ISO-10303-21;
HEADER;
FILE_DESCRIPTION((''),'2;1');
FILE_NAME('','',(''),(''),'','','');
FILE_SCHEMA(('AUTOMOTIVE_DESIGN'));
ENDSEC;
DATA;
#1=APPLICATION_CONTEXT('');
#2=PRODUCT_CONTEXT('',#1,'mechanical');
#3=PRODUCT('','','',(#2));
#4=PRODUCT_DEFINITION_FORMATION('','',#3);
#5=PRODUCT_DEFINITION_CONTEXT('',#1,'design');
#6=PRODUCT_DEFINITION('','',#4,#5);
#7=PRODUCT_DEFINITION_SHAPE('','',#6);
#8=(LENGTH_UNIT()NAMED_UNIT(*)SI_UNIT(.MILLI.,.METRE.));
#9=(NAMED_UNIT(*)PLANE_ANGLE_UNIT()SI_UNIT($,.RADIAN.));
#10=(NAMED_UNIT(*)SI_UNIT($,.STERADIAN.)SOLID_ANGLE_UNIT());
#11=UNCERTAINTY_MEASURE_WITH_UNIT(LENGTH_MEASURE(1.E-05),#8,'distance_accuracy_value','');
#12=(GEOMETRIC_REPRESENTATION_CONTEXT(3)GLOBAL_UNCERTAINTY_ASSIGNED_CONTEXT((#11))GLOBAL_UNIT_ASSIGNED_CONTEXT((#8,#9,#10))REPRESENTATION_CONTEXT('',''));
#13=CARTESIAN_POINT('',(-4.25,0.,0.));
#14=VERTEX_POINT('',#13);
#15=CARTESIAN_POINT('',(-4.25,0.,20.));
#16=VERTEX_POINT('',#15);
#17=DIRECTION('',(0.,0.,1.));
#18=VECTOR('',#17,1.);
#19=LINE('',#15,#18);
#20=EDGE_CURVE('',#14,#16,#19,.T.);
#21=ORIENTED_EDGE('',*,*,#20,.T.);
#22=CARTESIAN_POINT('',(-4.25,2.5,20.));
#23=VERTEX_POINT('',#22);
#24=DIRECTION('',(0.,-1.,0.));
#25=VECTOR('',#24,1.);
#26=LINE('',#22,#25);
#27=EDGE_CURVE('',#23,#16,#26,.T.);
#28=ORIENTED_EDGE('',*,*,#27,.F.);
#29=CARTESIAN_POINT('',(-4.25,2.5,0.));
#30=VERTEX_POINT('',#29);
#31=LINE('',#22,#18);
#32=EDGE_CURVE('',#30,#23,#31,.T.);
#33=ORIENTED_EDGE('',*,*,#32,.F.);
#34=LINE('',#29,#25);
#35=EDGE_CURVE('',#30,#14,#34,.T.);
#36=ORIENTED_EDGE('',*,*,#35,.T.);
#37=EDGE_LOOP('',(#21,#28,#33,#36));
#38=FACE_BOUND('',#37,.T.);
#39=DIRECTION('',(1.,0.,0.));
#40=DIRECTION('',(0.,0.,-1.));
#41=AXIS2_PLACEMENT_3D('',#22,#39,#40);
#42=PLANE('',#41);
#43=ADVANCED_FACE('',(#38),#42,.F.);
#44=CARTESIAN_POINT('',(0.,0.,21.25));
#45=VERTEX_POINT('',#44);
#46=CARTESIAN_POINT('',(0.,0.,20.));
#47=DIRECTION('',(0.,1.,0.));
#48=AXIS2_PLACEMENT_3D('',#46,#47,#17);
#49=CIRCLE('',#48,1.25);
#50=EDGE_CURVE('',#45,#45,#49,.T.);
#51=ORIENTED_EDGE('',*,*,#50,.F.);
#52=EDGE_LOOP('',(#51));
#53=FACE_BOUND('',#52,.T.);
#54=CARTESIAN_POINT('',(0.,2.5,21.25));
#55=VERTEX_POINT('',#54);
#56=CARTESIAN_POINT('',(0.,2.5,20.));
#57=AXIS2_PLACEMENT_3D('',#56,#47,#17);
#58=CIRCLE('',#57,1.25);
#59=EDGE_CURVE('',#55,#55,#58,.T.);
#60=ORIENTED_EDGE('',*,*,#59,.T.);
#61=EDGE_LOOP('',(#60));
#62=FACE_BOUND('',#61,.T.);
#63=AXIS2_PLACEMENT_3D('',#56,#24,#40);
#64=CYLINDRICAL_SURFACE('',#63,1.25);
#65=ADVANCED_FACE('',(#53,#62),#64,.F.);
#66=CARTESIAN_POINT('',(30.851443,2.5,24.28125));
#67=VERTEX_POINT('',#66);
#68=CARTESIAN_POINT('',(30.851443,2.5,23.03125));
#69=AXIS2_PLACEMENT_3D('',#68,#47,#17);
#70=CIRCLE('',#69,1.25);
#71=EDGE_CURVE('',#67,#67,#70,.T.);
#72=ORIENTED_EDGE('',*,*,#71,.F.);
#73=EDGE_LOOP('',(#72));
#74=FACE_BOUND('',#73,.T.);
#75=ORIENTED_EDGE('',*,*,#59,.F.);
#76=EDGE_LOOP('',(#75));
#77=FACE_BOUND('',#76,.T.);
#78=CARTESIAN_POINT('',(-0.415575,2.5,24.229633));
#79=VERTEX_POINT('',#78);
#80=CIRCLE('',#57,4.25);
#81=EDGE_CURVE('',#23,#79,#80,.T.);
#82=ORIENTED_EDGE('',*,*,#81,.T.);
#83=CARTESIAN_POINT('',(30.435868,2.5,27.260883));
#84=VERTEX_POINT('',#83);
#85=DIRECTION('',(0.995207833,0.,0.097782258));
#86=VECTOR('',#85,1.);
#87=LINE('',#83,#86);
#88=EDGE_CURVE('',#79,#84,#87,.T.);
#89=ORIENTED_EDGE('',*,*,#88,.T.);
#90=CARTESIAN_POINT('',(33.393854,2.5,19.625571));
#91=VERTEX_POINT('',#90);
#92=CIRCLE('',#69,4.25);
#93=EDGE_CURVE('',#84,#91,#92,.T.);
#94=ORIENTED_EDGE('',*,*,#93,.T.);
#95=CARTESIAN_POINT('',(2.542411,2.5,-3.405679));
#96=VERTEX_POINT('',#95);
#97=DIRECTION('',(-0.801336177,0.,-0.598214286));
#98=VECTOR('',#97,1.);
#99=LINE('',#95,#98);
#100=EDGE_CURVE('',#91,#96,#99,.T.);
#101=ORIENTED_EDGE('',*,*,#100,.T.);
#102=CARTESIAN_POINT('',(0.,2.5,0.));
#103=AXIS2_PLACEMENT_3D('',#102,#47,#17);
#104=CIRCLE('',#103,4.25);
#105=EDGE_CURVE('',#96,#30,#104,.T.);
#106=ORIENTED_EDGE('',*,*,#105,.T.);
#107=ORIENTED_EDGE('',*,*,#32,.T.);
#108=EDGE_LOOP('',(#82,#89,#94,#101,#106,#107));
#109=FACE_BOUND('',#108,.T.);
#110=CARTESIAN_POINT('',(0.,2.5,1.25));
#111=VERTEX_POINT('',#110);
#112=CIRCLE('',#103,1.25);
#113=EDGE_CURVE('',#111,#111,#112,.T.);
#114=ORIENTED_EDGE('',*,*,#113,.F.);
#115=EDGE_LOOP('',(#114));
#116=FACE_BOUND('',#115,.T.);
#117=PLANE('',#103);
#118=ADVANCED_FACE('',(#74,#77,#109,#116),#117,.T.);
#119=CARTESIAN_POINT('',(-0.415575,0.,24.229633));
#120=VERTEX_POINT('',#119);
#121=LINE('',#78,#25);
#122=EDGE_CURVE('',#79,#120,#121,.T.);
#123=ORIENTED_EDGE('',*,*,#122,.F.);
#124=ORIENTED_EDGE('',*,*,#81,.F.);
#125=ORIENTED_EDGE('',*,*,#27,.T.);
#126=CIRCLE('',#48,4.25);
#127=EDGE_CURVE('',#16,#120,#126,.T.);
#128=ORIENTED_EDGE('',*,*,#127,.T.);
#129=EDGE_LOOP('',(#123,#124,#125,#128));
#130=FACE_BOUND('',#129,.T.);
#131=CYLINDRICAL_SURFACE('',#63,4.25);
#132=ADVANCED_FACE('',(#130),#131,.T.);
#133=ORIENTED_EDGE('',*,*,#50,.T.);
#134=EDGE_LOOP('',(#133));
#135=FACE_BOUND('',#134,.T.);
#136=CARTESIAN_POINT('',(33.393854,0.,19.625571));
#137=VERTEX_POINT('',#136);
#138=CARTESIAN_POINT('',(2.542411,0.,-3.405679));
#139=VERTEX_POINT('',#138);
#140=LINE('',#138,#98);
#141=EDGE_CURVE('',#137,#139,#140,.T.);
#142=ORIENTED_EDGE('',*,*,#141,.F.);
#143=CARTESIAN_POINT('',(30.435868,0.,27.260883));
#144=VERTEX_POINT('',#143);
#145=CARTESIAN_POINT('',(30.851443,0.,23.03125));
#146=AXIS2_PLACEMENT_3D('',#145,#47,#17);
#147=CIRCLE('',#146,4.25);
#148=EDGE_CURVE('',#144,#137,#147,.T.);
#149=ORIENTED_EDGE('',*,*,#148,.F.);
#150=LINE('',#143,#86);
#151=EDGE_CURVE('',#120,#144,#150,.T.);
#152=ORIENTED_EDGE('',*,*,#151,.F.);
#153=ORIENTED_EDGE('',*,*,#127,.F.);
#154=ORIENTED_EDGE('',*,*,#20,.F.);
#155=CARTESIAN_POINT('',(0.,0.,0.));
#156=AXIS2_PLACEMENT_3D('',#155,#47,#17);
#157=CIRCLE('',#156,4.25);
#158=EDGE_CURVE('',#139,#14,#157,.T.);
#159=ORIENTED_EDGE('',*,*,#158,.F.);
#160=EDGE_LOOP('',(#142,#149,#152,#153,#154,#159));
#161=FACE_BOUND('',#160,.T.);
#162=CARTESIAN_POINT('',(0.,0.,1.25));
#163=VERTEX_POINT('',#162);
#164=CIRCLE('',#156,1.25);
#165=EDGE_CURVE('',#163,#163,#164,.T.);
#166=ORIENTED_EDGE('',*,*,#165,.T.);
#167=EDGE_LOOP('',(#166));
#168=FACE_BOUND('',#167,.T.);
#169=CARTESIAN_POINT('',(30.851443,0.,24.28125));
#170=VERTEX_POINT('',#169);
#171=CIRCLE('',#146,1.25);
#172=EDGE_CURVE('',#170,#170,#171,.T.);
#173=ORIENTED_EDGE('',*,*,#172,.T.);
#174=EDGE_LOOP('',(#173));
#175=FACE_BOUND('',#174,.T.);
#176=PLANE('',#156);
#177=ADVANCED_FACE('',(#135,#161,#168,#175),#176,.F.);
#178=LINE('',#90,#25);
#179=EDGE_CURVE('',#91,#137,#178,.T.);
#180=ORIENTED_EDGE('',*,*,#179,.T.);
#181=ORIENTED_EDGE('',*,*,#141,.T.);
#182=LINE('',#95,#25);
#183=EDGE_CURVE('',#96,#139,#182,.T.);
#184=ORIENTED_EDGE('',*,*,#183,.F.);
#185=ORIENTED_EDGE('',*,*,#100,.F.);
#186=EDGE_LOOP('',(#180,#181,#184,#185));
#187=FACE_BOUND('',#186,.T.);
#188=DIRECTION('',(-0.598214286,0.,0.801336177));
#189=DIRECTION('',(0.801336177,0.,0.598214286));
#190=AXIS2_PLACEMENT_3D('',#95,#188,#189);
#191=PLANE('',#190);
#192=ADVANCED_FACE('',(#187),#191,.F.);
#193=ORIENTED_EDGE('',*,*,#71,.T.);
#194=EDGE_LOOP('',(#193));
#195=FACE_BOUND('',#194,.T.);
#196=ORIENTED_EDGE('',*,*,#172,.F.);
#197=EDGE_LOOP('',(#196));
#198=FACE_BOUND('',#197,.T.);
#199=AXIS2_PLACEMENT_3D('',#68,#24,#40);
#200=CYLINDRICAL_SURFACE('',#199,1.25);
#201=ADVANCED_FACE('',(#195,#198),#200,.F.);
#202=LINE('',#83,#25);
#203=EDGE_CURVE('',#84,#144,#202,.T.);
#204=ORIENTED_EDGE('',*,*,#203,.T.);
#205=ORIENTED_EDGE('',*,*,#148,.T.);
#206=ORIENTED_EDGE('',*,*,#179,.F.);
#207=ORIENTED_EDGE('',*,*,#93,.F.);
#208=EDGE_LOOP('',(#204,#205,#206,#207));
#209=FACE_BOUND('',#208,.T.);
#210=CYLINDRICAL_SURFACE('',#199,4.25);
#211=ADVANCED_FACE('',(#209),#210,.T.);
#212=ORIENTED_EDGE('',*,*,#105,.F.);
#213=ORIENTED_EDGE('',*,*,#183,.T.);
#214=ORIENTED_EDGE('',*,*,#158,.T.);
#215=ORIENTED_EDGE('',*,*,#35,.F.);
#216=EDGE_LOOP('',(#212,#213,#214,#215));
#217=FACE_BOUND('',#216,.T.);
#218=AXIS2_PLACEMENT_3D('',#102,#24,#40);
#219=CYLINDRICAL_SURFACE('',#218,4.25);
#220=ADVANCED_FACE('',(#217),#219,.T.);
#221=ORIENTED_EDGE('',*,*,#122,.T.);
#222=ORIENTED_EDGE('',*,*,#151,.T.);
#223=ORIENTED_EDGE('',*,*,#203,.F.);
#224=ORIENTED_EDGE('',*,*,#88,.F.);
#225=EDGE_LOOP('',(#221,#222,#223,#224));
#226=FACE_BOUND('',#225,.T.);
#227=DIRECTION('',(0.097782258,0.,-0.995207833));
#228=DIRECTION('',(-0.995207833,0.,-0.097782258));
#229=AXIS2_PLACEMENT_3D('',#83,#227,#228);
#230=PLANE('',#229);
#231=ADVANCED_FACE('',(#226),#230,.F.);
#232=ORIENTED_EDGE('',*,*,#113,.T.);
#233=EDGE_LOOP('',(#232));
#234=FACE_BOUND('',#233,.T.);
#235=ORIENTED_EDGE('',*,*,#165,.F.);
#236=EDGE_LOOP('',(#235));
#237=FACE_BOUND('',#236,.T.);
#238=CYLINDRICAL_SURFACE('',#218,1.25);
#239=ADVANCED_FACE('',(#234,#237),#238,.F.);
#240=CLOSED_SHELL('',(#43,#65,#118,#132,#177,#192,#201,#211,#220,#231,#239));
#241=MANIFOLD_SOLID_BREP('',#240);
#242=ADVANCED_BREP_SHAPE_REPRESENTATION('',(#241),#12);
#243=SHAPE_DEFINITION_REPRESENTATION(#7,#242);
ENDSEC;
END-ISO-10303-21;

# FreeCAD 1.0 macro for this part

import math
import FreeCAD as App
import Part
import Sketcher
from FreeCAD import Vector
Q = App.Units.Quantity

doc = App.newDocument("Part")
body = doc.addObject("PartDesign::Body", "Body")

sketch1 = body.newObject("Sketcher::SketchObject", "Sketch")
sketch1.AttachmentSupport = (doc.getObject("XZ_Plane"), [""])
sketch1.MapMode = "FlatFace"
sketch1.addGeometry(Part.LineSegment(Vector(33.4, 19.6, 0), Vector(2.5, -3.4, 0)), False)
sketch1.addGeometry(Part.ArcOfCircle(Part.Circle(Vector(0, 0, 0), Vector(0, 0, 1), 4.2), math.radians(180), math.radians(307)), False)
sketch1.addGeometry(Part.LineSegment(Vector(-4.2, 0, 0), Vector(-4.2, 20, 0)), False)
sketch1.addGeometry(Part.ArcOfCircle(Part.Circle(Vector(0, 20, 0), Vector(0, 0, 1), 4.2), math.radians(96), math.radians(180)), False)
sketch1.addGeometry(Part.LineSegment(Vector(-0.4, 24.2, 0), Vector(30.4, 27.3, 0)), False)
sketch1.addGeometry(Part.ArcOfCircle(Part.Circle(Vector(30.9, 23, 0), Vector(0, 0, 1), 4.2), math.radians(-53), math.radians(96)), False)
sketch1.addGeometry(Part.Circle(Vector(30.9, 23, 0), Vector(0, 0, 1), 1.2), False)
sketch1.addGeometry(Part.Circle(Vector(0, 20, 0), Vector(0, 0, 1), 1.2), False)
sketch1.addGeometry(Part.Circle(Vector(0, 0, 0), Vector(0, 0, 1), 1.2), False)
sketch1.addConstraint(Sketcher.Constraint("Tangent", 0, 2, 1, 2))
sketch1.addConstraint(Sketcher.Constraint("Tangent", 1, 1, 2, 1))
sketch1.addConstraint(Sketcher.Constraint("Tangent", 2, 2, 3, 2))
sketch1.addConstraint(Sketcher.Constraint("Tangent", 3, 1, 4, 1))
sketch1.addConstraint(Sketcher.Constraint("Tangent", 4, 2, 5, 2))
sketch1.addConstraint(Sketcher.Constraint("Tangent", 5, 1, 0, 1))
sketch1.addConstraint(Sketcher.Constraint("Vertical", 2))
sketch1.addConstraint(Sketcher.Constraint("Coincident", 1, 3, -1, 1))
sketch1.addConstraint(Sketcher.Constraint("Coincident", 8, 3, -1, 1))
sketch1.addConstraint(Sketcher.Constraint("Coincident", 6, 3, 5, 3))
sketch1.addConstraint(Sketcher.Constraint("Coincident", 7, 3, 3, 3))
sketch1.addConstraint(Sketcher.Constraint("Equal", 1, 3))
sketch1.addConstraint(Sketcher.Constraint("Equal", 3, 5))
sketch1.addConstraint(Sketcher.Constraint("Equal", 6, 7))
sketch1.addConstraint(Sketcher.Constraint("Equal", 7, 8))
sketch1.addConstraint(Sketcher.Constraint("Diameter", 6, Q("2.5 mm")))
sketch1.addConstraint(Sketcher.Constraint("DistanceY", 2, 1, 2, 2, Q("20 mm")))
sketch1.addConstraint(Sketcher.Constraint("Radius", 1, Q("4.25 mm")))
sketch1.addConstraint(Sketcher.Constraint("Distance", 4, Q("31 mm")))
sketch1.addConstraint(Sketcher.Constraint("Distance", 0, Q("38.5 mm")))
pad1 = body.newObject("PartDesign::Pad", "Pad")
pad1.Profile = sketch1
pad1.Length = 2.5
pad1.Reversed = True

doc.recompute()
